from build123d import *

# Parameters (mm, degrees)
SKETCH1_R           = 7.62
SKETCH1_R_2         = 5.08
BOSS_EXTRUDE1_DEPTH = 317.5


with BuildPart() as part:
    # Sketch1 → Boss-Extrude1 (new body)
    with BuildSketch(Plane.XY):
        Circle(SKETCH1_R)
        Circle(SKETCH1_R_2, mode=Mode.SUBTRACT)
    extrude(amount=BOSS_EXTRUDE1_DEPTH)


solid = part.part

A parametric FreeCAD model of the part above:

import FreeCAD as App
import Part
import Sketcher
from FreeCAD import Vector
Q = App.Units.Quantity

doc = App.newDocument("Part")
params = doc.addObject("Spreadsheet::Sheet", "Params")
for row, (alias, value) in enumerate([
    ("sketch1_diameter", "0.6 in"),
    ("sketch1_diameter2", "0.4 in"),
    ("pad1_length", "12.5 in"),
], start=1):
    params.set(f"A{row}", alias)
    params.set(f"B{row}", "=" + value)
    params.setAlias(f"B{row}", alias)

body = doc.addObject("PartDesign::Body", "Body")

sketch1 = body.newObject("Sketcher::SketchObject", "Sketch")
sketch1.AttachmentSupport = (doc.getObject("XY_Plane"), [""])
sketch1.MapMode = "FlatFace"
sketch1.addGeometry([
    Part.Circle(Vector(0, 0, 0), Vector(0, 0, 1), 8),
    Part.Circle(Vector(0, 0, 0), Vector(0, 0, 1), 5),
], False)
sketch1.addConstraint([
    Sketcher.Constraint("Coincident", 0, 3, -1, 1),
    Sketcher.Constraint("Coincident", 1, 3, -1, 1),
    Sketcher.Constraint("Diameter", 0, Q("0.6 in")),
    Sketcher.Constraint("Diameter", 1, Q("0.4 in")),
])
sketch1.setExpression("Constraints[2]", "Params.sketch1_diameter")
sketch1.setExpression("Constraints[3]", "Params.sketch1_diameter2")
pad1 = body.newObject("PartDesign::Pad", "Pad")
pad1.Profile = sketch1
pad1.setExpression("Length", "Params.pad1_length")

doc.recompute()
